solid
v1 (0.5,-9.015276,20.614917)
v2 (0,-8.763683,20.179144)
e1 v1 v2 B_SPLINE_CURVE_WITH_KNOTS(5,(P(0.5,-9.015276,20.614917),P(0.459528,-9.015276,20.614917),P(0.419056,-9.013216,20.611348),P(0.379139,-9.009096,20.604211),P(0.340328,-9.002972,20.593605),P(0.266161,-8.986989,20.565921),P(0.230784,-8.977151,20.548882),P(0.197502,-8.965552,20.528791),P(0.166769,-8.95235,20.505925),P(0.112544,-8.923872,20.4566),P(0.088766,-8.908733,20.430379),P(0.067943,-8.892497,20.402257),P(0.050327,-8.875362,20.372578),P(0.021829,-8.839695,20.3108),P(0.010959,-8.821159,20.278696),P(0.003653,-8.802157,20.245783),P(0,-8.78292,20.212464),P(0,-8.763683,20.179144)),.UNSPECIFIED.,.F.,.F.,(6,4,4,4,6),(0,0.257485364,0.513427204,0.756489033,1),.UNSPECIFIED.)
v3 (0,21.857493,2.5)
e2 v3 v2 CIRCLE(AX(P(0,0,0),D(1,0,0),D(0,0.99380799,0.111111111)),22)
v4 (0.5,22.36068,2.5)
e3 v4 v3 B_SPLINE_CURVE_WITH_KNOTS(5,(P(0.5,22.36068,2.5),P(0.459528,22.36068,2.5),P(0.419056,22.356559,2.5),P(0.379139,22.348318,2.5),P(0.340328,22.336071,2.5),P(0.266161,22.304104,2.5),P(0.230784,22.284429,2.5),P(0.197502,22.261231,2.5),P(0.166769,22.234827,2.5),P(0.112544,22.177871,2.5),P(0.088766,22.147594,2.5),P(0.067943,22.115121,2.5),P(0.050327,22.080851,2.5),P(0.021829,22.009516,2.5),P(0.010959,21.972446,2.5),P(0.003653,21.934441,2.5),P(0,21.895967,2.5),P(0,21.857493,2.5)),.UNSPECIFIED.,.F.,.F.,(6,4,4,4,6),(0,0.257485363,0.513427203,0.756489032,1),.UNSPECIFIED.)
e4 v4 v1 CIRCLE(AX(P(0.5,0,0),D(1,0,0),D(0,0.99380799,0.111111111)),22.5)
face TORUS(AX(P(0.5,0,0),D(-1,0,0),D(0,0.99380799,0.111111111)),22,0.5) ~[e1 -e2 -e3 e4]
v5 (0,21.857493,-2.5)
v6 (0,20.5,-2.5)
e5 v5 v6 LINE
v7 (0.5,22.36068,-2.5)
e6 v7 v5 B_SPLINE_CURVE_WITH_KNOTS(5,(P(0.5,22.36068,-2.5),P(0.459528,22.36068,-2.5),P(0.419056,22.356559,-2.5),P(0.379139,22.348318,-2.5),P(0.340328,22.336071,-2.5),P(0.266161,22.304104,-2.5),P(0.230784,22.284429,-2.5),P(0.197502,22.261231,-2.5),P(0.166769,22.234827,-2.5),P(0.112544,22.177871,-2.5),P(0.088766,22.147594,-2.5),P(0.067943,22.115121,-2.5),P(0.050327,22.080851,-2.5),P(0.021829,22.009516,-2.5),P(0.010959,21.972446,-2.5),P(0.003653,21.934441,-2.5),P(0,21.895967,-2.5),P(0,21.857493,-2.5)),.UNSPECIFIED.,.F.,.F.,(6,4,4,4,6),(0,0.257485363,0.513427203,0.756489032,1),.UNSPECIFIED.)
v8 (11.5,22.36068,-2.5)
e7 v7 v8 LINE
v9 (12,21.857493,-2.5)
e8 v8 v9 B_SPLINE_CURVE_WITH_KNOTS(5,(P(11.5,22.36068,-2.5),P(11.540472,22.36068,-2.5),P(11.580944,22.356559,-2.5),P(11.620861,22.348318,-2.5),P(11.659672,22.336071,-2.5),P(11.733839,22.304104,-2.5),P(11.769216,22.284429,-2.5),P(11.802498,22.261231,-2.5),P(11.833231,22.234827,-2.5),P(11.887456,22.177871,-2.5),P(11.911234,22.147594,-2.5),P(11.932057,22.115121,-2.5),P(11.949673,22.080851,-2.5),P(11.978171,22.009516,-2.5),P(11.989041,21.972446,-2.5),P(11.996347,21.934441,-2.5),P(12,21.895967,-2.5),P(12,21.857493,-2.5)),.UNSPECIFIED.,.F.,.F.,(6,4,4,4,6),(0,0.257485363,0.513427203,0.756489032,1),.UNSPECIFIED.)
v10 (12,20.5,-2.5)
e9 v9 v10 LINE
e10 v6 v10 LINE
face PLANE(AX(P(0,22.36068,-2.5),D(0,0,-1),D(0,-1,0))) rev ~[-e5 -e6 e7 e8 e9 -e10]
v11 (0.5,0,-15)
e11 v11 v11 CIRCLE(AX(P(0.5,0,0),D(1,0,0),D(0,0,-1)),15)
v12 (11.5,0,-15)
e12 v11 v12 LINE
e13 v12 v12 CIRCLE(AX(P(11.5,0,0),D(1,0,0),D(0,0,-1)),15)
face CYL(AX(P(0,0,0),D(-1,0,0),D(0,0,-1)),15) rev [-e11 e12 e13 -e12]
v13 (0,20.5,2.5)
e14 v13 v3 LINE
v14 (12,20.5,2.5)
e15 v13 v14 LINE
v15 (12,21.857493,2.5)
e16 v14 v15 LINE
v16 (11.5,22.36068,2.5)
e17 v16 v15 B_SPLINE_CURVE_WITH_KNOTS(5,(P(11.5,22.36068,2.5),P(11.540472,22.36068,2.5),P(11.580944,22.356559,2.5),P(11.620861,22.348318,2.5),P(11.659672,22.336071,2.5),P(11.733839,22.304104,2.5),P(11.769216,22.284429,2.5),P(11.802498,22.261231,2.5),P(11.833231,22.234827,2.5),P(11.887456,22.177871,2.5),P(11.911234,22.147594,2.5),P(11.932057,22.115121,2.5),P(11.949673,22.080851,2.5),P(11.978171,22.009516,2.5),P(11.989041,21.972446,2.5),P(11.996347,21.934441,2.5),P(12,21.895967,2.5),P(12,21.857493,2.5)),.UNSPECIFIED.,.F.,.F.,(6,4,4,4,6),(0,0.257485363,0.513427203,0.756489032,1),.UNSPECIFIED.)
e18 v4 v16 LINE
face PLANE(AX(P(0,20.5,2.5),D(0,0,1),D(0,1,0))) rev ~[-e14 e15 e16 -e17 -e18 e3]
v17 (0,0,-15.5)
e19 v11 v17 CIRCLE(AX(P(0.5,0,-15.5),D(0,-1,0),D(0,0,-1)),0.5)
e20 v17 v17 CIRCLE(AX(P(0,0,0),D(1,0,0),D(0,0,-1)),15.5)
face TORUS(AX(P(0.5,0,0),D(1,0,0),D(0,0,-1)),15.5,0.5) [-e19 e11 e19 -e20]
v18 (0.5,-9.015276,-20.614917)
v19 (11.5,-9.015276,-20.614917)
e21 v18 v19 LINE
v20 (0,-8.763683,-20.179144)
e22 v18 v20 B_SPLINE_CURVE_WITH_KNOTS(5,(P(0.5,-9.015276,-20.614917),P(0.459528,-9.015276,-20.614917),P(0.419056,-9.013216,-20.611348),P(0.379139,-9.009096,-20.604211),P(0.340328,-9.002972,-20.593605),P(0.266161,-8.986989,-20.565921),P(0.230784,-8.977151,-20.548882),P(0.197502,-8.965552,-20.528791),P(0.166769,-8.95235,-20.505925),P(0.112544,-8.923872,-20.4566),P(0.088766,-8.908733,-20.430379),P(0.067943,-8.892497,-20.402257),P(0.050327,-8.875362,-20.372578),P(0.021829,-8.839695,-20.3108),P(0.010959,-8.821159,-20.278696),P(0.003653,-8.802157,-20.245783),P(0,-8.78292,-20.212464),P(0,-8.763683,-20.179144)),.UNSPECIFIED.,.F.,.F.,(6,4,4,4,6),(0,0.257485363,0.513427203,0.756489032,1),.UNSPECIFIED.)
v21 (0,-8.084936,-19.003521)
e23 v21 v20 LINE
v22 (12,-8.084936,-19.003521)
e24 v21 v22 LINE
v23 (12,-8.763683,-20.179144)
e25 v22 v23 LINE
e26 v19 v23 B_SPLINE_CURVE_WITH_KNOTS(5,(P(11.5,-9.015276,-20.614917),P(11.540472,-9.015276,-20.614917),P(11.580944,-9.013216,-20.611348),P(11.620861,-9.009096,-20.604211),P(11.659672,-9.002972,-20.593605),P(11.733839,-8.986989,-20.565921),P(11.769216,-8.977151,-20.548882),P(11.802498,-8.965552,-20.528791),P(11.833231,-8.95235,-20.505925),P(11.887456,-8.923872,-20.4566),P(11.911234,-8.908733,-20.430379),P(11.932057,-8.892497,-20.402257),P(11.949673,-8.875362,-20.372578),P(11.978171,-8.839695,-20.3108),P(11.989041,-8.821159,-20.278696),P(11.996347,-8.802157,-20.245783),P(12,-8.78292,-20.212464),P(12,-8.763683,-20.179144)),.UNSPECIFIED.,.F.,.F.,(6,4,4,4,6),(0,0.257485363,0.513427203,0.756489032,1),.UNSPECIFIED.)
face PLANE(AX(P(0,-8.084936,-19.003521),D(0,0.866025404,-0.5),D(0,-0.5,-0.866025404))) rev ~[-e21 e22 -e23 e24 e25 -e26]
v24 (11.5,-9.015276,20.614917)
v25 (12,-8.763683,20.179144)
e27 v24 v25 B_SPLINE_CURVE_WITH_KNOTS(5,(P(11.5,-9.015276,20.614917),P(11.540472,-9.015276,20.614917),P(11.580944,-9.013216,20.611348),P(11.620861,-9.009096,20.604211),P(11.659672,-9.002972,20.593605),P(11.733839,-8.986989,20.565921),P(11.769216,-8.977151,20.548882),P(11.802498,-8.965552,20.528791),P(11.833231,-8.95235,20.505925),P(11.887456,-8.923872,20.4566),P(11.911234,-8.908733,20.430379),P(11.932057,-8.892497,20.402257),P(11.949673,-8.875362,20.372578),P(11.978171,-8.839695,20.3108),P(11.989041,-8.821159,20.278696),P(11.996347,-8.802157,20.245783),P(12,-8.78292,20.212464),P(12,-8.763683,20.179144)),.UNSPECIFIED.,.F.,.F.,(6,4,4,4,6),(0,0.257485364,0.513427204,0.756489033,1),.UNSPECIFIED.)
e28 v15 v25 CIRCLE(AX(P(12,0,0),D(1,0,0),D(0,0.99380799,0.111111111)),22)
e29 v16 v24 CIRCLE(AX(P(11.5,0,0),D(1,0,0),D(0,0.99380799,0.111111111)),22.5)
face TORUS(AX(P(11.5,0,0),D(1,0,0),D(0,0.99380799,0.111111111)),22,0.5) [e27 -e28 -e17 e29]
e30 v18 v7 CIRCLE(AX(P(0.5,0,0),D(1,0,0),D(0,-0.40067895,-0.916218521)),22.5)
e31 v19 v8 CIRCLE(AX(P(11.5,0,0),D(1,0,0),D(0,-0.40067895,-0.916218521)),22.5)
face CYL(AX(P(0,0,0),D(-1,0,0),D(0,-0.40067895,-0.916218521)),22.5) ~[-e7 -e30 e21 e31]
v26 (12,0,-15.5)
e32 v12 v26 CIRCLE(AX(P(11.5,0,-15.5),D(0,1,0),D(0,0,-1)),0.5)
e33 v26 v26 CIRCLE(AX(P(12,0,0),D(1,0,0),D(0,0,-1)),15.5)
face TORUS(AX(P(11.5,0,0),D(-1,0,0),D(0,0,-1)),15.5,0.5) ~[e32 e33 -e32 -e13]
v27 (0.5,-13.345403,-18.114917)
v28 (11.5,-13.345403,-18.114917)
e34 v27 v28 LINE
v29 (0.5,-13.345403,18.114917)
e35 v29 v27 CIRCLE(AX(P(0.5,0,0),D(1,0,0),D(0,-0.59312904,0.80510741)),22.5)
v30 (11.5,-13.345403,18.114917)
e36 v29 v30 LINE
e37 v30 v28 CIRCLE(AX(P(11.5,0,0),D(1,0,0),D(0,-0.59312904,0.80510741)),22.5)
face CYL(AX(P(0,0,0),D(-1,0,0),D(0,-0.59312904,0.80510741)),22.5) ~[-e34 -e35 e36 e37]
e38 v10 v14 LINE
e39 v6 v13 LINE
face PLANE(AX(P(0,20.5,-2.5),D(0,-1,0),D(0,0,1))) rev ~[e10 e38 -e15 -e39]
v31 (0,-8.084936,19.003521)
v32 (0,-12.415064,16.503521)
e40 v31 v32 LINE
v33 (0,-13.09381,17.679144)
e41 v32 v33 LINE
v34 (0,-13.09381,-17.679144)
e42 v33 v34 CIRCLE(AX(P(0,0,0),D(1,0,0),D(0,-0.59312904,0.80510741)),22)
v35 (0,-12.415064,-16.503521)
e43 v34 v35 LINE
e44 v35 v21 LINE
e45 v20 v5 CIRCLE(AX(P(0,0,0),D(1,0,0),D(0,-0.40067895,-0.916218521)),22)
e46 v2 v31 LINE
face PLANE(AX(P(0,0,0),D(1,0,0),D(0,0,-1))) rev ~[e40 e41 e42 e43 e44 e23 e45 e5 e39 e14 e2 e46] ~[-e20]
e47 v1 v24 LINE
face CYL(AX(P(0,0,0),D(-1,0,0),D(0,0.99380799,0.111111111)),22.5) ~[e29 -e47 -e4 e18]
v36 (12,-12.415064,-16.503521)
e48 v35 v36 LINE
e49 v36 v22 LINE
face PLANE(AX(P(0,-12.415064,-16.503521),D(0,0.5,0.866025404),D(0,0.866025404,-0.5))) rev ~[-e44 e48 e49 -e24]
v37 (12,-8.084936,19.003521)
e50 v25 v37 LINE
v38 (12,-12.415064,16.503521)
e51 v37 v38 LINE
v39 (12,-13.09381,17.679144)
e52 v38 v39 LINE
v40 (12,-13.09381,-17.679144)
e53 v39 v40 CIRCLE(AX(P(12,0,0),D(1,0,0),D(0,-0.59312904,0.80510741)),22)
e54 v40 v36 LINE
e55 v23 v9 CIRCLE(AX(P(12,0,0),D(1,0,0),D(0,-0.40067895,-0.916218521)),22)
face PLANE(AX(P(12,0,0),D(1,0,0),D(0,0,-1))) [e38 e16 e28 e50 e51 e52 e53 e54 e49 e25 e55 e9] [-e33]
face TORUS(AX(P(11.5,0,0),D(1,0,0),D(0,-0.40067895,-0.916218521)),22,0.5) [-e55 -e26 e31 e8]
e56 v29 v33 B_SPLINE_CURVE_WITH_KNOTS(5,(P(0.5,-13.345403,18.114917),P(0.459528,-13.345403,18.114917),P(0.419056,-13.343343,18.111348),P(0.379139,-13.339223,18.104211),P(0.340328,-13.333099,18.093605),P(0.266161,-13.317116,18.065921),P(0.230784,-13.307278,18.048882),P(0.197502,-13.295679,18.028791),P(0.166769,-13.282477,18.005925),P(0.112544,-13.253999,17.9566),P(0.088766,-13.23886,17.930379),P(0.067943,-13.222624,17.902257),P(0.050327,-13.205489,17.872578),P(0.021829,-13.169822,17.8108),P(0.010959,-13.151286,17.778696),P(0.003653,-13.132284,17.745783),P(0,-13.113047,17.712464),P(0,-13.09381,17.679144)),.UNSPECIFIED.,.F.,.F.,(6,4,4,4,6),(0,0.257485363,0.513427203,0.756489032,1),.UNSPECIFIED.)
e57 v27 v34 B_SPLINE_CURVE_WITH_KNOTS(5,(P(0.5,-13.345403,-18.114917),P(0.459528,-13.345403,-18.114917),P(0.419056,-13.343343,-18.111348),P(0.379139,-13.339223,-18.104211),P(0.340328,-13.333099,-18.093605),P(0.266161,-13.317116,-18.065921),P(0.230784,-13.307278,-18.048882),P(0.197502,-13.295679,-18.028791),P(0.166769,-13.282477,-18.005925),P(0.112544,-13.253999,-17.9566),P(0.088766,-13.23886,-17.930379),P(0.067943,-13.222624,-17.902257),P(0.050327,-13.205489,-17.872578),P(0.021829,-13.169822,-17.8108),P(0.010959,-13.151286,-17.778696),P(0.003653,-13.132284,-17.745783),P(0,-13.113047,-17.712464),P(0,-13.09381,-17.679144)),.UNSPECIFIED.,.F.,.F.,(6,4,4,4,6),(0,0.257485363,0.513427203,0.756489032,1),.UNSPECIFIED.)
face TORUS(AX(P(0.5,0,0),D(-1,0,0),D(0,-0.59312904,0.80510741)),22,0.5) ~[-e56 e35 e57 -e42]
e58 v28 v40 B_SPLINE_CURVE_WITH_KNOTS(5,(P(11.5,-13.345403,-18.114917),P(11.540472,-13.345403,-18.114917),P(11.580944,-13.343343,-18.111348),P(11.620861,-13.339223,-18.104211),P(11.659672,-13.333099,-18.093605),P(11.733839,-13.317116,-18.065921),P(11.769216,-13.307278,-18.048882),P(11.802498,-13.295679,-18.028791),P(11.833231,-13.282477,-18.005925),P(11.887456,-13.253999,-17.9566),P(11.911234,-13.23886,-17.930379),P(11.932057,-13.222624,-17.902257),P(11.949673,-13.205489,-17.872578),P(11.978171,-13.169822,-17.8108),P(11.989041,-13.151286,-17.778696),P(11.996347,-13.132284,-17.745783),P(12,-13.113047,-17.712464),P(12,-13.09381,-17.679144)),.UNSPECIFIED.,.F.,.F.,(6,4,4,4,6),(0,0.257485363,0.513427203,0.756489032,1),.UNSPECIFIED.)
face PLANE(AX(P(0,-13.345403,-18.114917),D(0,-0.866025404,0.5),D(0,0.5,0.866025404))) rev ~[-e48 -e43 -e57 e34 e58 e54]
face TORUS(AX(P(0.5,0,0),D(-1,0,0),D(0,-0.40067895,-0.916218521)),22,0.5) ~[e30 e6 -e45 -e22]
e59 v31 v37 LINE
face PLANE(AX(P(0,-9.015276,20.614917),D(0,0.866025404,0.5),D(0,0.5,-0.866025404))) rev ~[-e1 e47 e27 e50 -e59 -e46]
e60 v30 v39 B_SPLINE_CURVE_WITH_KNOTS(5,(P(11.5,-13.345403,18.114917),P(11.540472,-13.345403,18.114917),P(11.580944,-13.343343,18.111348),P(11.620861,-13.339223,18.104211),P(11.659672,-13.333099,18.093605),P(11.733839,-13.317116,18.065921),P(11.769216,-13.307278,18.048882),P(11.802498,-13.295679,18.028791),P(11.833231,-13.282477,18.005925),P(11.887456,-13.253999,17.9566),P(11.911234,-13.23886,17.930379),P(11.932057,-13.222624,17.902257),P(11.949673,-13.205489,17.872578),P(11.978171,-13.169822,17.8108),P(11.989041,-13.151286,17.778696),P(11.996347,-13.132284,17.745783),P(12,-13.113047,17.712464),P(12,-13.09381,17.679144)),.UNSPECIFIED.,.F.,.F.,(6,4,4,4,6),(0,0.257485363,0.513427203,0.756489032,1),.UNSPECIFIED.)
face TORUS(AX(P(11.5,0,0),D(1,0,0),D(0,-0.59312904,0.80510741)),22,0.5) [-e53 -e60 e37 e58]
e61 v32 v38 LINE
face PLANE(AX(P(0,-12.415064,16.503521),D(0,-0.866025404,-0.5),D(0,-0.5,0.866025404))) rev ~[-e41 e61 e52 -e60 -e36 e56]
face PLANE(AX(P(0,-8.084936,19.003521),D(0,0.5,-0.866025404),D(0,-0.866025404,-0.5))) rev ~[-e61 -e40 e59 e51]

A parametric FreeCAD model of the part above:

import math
import FreeCAD as App
import Part
import Sketcher
Q = App.Units.Quantity


def edges_at(feature, points):
    """Names of the edges that pass closest to the given points."""
    edges = feature.Shape.Edges
    near = lambda p: min(range(len(edges)), key=lambda i: edges[i].distToShape(Part.Vertex(*p))[0])
    return sorted({f"Edge{near(p) + 1}" for p in points})

doc = App.newDocument("Part")
body = doc.addObject("PartDesign::Body", "Body")

sketch1 = body.newObject("Sketcher::SketchObject", "Sketch")
sketch1.AttachmentSupport = (doc.getObject("YZ_Plane"), [""])
sketch1.MapMode = "FlatFace"
sketch1.addGeometry(Part.LineSegment(App.Vector(-13.3, -18.1, 0), App.Vector(-12.4, -16.5, 0)), False)
sketch1.addGeometry(Part.LineSegment(App.Vector(-12.4, -16.5, 0), App.Vector(-8.1, -19, 0)), False)
sketch1.addGeometry(Part.LineSegment(App.Vector(-8.1, -19, 0), App.Vector(-9, -20.6, 0)), False)
sketch1.addGeometry(Part.ArcOfCircle(Part.Circle(App.Vector(0, 0, 0), App.Vector(0, 0, 1), 22.5), math.radians(-114), math.radians(-6)), False)
sketch1.addGeometry(Part.LineSegment(App.Vector(22.4, -2.5, 0), App.Vector(20.5, -2.5, 0)), False)
sketch1.addGeometry(Part.LineSegment(App.Vector(20.5, -2.5, 0), App.Vector(20.5, 2.5, 0)), False)
sketch1.addGeometry(Part.LineSegment(App.Vector(20.5, 2.5, 0), App.Vector(22.4, 2.5, 0)), False)
sketch1.addGeometry(Part.ArcOfCircle(Part.Circle(App.Vector(0, 0, 0), App.Vector(0, 0, 1), 22.5), math.radians(6), math.radians(114)), False)
sketch1.addGeometry(Part.LineSegment(App.Vector(-9, 20.6, 0), App.Vector(-8.1, 19, 0)), False)
sketch1.addGeometry(Part.LineSegment(App.Vector(-8.1, 19, 0), App.Vector(-12.4, 16.5, 0)), False)
sketch1.addGeometry(Part.LineSegment(App.Vector(-12.4, 16.5, 0), App.Vector(-13.3, 18.1, 0)), False)
sketch1.addGeometry(Part.ArcOfCircle(Part.Circle(App.Vector(0, 0, 0), App.Vector(0, 0, 1), 22.5), math.radians(126), math.radians(234)), False)
sketch1.addGeometry(Part.Circle(App.Vector(0, 0, 0), App.Vector(0, 0, 1), 15), False)
sketch1.addConstraint(Sketcher.Constraint("Coincident", 0, 2, 1, 1))
sketch1.addConstraint(Sketcher.Constraint("Coincident", 1, 2, 2, 1))
sketch1.addConstraint(Sketcher.Constraint("Coincident", 2, 2, 3, 1))
sketch1.addConstraint(Sketcher.Constraint("Coincident", 3, 2, 4, 1))
sketch1.addConstraint(Sketcher.Constraint("Coincident", 4, 2, 5, 1))
sketch1.addConstraint(Sketcher.Constraint("Coincident", 5, 2, 6, 1))
sketch1.addConstraint(Sketcher.Constraint("Coincident", 6, 2, 7, 1))
sketch1.addConstraint(Sketcher.Constraint("Coincident", 7, 2, 8, 1))
sketch1.addConstraint(Sketcher.Constraint("Coincident", 8, 2, 9, 1))
sketch1.addConstraint(Sketcher.Constraint("Coincident", 9, 2, 10, 1))
sketch1.addConstraint(Sketcher.Constraint("Coincident", 10, 2, 11, 1))
sketch1.addConstraint(Sketcher.Constraint("Coincident", 11, 2, 0, 1))
sketch1.addConstraint(Sketcher.Constraint("Horizontal", 4))
sketch1.addConstraint(Sketcher.Constraint("Vertical", 5))
sketch1.addConstraint(Sketcher.Constraint("Horizontal", 6))
sketch1.addConstraint(Sketcher.Constraint("Coincident", 3, 3, -1, 1))
sketch1.addConstraint(Sketcher.Constraint("Coincident", 7, 3, -1, 1))
sketch1.addConstraint(Sketcher.Constraint("Coincident", 11, 3, -1, 1))
sketch1.addConstraint(Sketcher.Constraint("Coincident", 12, 3, -1, 1))
sketch1.addConstraint(Sketcher.Constraint("Equal", 3, 7))
sketch1.addConstraint(Sketcher.Constraint("Equal", 7, 11))
sketch1.addConstraint(Sketcher.Constraint("Symmetric", 1, 2, 8, 2, -1))
sketch1.addConstraint(Sketcher.Constraint("Symmetric", 0, 2, 9, 2, -1))
sketch1.addConstraint(Sketcher.Constraint("Perpendicular", 0, 1))
sketch1.addConstraint(Sketcher.Constraint("Perpendicular", 1, 2))
sketch1.addConstraint(Sketcher.Constraint("Perpendicular", 8, 9))
sketch1.addConstraint(Sketcher.Constraint("Perpendicular", 9, 10))
sketch1.addConstraint(Sketcher.Constraint("Vertical", 3, 2, 6, 2))
sketch1.addConstraint(Sketcher.Constraint("Equal", 0, 2))
sketch1.addConstraint(Sketcher.Constraint("Diameter", 12, 30.0))
sketch1.addConstraint(Sketcher.Constraint("Radius", 3, 22.5))
sketch1.addConstraint(Sketcher.Constraint("DistanceY", 5, 1, 5, 2, 5.0))
sketch1.addConstraint(Sketcher.Constraint("Angle", 0, Q("60 deg")))
sketch1.addConstraint(Sketcher.Constraint("Distance", 1, 5.0))
sketch1.addConstraint(Sketcher.Constraint("DistanceX", -1, 1, 4, 2, 20.5))
sketch1.addConstraint(Sketcher.Constraint("Distance", 0, 1.86068))
pad1 = body.newObject("PartDesign::Pad", "Pad")
pad1.Profile = sketch1
pad1.Length = 12
doc.recompute()

fillet = body.newObject("PartDesign::Fillet", "Fillet")
fillet.Base = (pad1, edges_at(pad1, [
    (0, -22.5, 0),
    (0, 11.25, 19.486),
    (0, 11.25, -19.486),
    (12, 11.25, 19.486),
    (0, 0, 15),
    (12, 0, 15),
    (12, -22.5, 0),
    (12, 11.25, -19.486),
]))
fillet.Radius = 0.5

doc.recompute()
